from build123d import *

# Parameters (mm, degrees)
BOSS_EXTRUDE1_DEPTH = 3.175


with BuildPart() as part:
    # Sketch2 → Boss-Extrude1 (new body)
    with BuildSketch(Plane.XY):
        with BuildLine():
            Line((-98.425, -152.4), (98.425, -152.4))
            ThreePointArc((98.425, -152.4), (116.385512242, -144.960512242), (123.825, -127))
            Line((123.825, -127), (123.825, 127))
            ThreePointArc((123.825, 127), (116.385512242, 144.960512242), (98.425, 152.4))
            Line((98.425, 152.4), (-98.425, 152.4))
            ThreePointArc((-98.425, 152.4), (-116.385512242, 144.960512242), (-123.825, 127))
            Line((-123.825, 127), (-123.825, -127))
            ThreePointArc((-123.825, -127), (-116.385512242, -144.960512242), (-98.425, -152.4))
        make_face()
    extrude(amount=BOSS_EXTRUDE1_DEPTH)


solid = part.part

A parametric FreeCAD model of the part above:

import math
import FreeCAD as App
import Part
import Sketcher
Q = App.Units.Quantity

doc = App.newDocument("Part")
body = doc.addObject("PartDesign::Body", "Body")

# Sketch on XY plane
sketch1 = body.newObject("Sketcher::SketchObject", "Sketch")
sketch1.AttachmentSupport = (doc.getObject("XY_Plane"), [""])
sketch1.MapMode = "FlatFace"
sketch1.addGeometry(Part.LineSegment(App.Vector(-98, -152, 0), App.Vector(98, -152, 0)), False)
sketch1.addGeometry(Part.ArcOfCircle(Part.Circle(App.Vector(98, -127, 0), App.Vector(0, 0, 1), 25), math.radians(-90), math.radians(0)), False)
sketch1.addGeometry(Part.LineSegment(App.Vector(124, -127, 0), App.Vector(124, 127, 0)), False)
sketch1.addGeometry(Part.ArcOfCircle(Part.Circle(App.Vector(98, 127, 0), App.Vector(0, 0, 1), 25), math.radians(0), math.radians(90)), False)
sketch1.addGeometry(Part.LineSegment(App.Vector(98, 152, 0), App.Vector(-98, 152, 0)), False)
sketch1.addGeometry(Part.ArcOfCircle(Part.Circle(App.Vector(-98, 127, 0), App.Vector(0, 0, 1), 25), math.radians(90), math.radians(180)), False)
sketch1.addGeometry(Part.LineSegment(App.Vector(-124, 127, 0), App.Vector(-124, -127, 0)), False)
sketch1.addGeometry(Part.ArcOfCircle(Part.Circle(App.Vector(-98, -127, 0), App.Vector(0, 0, 1), 25), math.radians(180), math.radians(270)), False)
sketch1.addConstraint(Sketcher.Constraint("Tangent", 0, 2, 1, 1))
sketch1.addConstraint(Sketcher.Constraint("Tangent", 1, 2, 2, 1))
sketch1.addConstraint(Sketcher.Constraint("Tangent", 2, 2, 3, 1))
sketch1.addConstraint(Sketcher.Constraint("Tangent", 3, 2, 4, 1))
sketch1.addConstraint(Sketcher.Constraint("Tangent", 4, 2, 5, 1))
sketch1.addConstraint(Sketcher.Constraint("Tangent", 5, 2, 6, 1))
sketch1.addConstraint(Sketcher.Constraint("Tangent", 6, 2, 7, 1))
sketch1.addConstraint(Sketcher.Constraint("Tangent", 7, 2, 0, 1))
sketch1.addConstraint(Sketcher.Constraint("Horizontal", 0))
sketch1.addConstraint(Sketcher.Constraint("Vertical", 2))
sketch1.addConstraint(Sketcher.Constraint("Horizontal", 4))
sketch1.addConstraint(Sketcher.Constraint("Vertical", 6))
sketch1.addConstraint(Sketcher.Constraint("Equal", 1, 3))
sketch1.addConstraint(Sketcher.Constraint("Equal", 3, 5))
sketch1.addConstraint(Sketcher.Constraint("Equal", 5, 7))
sketch1.addConstraint(Sketcher.Constraint("Symmetric", 1, 3, 5, 3, -1, 1))
sketch1.addConstraint(Sketcher.Constraint("Radius", 1, Q("1 in")))
sketch1.addConstraint(Sketcher.Constraint("DistanceY", 2, 1, 2, 2, Q("10 in")))
sketch1.addConstraint(Sketcher.Constraint("DistanceX", 0, 1, 0, 2, Q("7.75 in")))
pad1 = body.newObject("PartDesign::Pad", "Pad")
pad1.Profile = sketch1
pad1.Length = Q("0.125 in")

doc.recompute()
